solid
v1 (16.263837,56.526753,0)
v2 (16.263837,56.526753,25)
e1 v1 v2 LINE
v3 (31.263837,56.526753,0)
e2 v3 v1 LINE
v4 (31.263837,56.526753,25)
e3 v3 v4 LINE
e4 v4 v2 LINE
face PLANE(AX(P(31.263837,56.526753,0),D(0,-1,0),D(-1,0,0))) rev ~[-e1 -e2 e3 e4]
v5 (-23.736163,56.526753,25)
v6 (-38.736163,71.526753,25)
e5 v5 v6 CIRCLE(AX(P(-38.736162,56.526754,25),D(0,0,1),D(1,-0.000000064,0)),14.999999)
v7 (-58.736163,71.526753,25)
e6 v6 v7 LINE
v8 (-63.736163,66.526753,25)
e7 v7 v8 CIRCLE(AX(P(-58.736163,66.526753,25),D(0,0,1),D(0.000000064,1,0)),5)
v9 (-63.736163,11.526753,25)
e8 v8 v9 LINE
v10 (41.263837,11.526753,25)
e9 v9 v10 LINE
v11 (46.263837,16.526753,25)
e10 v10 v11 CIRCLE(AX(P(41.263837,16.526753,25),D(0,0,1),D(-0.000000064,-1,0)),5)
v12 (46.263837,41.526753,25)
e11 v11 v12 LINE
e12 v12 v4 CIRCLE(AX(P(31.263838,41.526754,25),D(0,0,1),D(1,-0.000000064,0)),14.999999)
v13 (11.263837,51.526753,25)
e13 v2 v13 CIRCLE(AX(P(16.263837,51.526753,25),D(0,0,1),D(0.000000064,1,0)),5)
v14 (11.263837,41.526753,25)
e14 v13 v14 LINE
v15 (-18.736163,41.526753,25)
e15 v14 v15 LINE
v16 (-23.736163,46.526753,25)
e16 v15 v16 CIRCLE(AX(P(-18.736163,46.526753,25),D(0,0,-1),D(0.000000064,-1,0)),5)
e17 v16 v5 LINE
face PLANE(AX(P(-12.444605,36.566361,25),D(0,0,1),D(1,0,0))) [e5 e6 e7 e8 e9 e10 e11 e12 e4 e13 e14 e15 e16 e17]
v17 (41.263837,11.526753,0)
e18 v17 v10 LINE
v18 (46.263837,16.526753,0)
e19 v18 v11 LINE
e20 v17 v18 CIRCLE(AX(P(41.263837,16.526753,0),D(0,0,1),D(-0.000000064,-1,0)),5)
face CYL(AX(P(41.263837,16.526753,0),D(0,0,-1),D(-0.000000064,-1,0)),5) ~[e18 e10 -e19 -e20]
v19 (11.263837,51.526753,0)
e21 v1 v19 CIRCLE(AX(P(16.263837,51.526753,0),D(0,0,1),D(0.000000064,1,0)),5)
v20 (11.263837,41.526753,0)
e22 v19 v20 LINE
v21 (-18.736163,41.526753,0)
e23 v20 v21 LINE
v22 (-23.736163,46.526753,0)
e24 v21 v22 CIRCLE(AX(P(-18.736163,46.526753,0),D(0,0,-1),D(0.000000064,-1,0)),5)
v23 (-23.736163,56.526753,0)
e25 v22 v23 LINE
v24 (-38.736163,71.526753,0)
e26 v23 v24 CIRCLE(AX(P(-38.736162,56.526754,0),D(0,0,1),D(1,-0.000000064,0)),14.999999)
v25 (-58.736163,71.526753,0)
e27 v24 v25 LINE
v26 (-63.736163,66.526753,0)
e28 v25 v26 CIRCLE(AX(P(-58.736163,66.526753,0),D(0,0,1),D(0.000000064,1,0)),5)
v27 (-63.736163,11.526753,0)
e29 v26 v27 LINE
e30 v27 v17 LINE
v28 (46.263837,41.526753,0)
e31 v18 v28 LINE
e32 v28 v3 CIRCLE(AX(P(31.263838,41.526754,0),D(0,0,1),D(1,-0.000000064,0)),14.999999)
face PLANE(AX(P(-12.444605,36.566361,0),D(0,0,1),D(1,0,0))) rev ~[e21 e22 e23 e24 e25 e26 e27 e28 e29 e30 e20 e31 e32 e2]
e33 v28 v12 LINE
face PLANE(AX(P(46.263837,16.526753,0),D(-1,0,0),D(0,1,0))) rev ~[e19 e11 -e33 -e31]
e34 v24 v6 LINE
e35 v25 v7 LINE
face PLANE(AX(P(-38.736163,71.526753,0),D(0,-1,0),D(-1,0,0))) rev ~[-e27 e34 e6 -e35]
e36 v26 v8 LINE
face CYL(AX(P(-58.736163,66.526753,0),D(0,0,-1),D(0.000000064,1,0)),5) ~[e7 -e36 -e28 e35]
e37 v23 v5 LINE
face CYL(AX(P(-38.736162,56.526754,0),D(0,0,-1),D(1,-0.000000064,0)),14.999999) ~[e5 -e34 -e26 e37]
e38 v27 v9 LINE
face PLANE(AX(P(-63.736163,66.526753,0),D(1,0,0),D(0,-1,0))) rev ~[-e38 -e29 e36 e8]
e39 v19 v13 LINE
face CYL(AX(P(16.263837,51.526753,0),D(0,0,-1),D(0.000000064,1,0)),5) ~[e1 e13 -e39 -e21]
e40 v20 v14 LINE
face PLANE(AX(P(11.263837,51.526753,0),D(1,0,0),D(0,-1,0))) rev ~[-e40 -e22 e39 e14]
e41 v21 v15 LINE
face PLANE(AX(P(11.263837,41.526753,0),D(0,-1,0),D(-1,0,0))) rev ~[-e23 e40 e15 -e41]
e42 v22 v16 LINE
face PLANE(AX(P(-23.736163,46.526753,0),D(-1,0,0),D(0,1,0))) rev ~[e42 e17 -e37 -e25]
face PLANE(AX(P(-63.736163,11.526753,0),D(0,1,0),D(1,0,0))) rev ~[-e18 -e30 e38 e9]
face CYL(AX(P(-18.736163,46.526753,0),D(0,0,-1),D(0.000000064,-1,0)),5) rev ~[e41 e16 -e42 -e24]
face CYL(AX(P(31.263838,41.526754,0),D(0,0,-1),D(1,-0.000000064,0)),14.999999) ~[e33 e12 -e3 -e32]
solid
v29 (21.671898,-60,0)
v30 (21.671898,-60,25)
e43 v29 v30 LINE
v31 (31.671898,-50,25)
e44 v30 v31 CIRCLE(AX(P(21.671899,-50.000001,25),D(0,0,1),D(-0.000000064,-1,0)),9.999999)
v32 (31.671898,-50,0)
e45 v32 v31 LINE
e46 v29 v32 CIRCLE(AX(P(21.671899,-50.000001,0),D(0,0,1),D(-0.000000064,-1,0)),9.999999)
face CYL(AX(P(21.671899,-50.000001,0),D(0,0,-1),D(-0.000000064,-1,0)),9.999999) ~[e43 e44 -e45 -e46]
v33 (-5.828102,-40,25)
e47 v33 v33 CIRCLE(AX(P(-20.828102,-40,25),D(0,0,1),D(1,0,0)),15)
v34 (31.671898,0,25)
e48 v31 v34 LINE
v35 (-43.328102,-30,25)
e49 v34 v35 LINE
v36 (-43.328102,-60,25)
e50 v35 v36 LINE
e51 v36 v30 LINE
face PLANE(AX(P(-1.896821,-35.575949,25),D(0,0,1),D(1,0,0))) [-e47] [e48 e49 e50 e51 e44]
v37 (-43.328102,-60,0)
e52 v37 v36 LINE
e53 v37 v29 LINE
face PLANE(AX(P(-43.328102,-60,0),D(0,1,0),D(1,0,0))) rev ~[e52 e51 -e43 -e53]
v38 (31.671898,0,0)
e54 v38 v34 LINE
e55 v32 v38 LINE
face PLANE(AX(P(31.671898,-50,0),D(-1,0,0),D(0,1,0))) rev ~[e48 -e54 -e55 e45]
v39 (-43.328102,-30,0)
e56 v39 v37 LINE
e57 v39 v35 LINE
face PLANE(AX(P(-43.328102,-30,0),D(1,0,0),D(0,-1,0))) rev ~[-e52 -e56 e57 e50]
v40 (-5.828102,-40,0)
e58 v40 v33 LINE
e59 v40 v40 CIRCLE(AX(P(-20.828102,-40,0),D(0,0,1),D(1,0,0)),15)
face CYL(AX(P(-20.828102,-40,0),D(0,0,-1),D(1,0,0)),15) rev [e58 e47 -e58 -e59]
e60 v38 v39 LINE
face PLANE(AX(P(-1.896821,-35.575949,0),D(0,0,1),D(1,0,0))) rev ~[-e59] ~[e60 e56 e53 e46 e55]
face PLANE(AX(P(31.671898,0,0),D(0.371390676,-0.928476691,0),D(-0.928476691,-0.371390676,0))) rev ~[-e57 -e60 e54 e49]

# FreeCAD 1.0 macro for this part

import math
import FreeCAD as App
import Part
import Sketcher
from FreeCAD import Vector

doc = App.newDocument("Part")
body = doc.addObject("PartDesign::Body", "Body")
body.AllowCompound = True

# Sketch on XY plane
sketch1 = body.newObject("Sketcher::SketchObject", "Sketch")
sketch1.AttachmentSupport = (doc.getObject("XY_Plane"), [""])
sketch1.MapMode = "FlatFace"
sketch1.addGeometry(Part.LineSegment(Vector(-43.3, -30, 0), Vector(-43.3, -60, 0)), False)
sketch1.addGeometry(Part.LineSegment(Vector(-43.3, -60, 0), Vector(21.7, -60, 0)), False)
sketch1.addGeometry(Part.ArcOfCircle(Part.Circle(Vector(21.7, -50, 0), Vector(0, 0, 1), 10), math.radians(-90), math.radians(0)), False)
sketch1.addGeometry(Part.LineSegment(Vector(31.7, -50, 0), Vector(31.7, 0, 0)), False)
sketch1.addGeometry(Part.LineSegment(Vector(31.7, 0, 0), Vector(-43.3, -30, 0)), False)
sketch1.addGeometry(Part.Circle(Vector(-20.8, -40, 0), Vector(0, 0, 1), 15), False)
sketch1.addGeometry(Part.LineSegment(Vector(-63.7, 66.5, 0), Vector(-63.7, 11.5, 0)), False)
sketch1.addGeometry(Part.LineSegment(Vector(-63.7, 11.5, 0), Vector(41.3, 11.5, 0)), False)
sketch1.addGeometry(Part.ArcOfCircle(Part.Circle(Vector(41.3, 16.5, 0), Vector(0, 0, 1), 5), math.radians(-90), math.radians(0)), False)
sketch1.addGeometry(Part.LineSegment(Vector(46.3, 16.5, 0), Vector(46.3, 41.5, 0)), False)
sketch1.addGeometry(Part.ArcOfCircle(Part.Circle(Vector(31.3, 41.5, 0), Vector(0, 0, 1), 15), math.radians(0), math.radians(90)), False)
sketch1.addGeometry(Part.LineSegment(Vector(31.3, 56.5, 0), Vector(16.3, 56.5, 0)), False)
sketch1.addGeometry(Part.ArcOfCircle(Part.Circle(Vector(16.3, 51.5, 0), Vector(0, 0, 1), 5), math.radians(90), math.radians(180)), False)
sketch1.addGeometry(Part.LineSegment(Vector(11.3, 51.5, 0), Vector(11.3, 41.5, 0)), False)
sketch1.addGeometry(Part.LineSegment(Vector(11.3, 41.5, 0), Vector(-18.7, 41.5, 0)), False)
sketch1.addGeometry(Part.ArcOfCircle(Part.Circle(Vector(-18.7, 46.5, 0), Vector(0, 0, 1), 5), math.radians(180), math.radians(270)), False)
sketch1.addGeometry(Part.LineSegment(Vector(-23.7, 46.5, 0), Vector(-23.7, 56.5, 0)), False)
sketch1.addGeometry(Part.ArcOfCircle(Part.Circle(Vector(-38.7, 56.5, 0), Vector(0, 0, 1), 15), math.radians(0), math.radians(90)), False)
sketch1.addGeometry(Part.LineSegment(Vector(-38.7, 71.5, 0), Vector(-58.7, 71.5, 0)), False)
sketch1.addGeometry(Part.ArcOfCircle(Part.Circle(Vector(-58.7, 66.5, 0), Vector(0, 0, 1), 5), math.radians(90), math.radians(180)), False)
sketch1.addConstraint(Sketcher.Constraint("Coincident", 0, 2, 1, 1))
sketch1.addConstraint(Sketcher.Constraint("Tangent", 1, 2, 2, 1))
sketch1.addConstraint(Sketcher.Constraint("Tangent", 2, 2, 3, 1))
sketch1.addConstraint(Sketcher.Constraint("Coincident", 3, 2, 4, 1))
sketch1.addConstraint(Sketcher.Constraint("Coincident", 4, 2, 0, 1))
sketch1.addConstraint(Sketcher.Constraint("Coincident", 6, 2, 7, 1))
sketch1.addConstraint(Sketcher.Constraint("Tangent", 7, 2, 8, 1))
sketch1.addConstraint(Sketcher.Constraint("Tangent", 8, 2, 9, 1))
sketch1.addConstraint(Sketcher.Constraint("Tangent", 9, 2, 10, 1))
sketch1.addConstraint(Sketcher.Constraint("Tangent", 10, 2, 11, 1))
sketch1.addConstraint(Sketcher.Constraint("Tangent", 11, 2, 12, 1))
sketch1.addConstraint(Sketcher.Constraint("Tangent", 12, 2, 13, 1))
sketch1.addConstraint(Sketcher.Constraint("Coincident", 13, 2, 14, 1))
sketch1.addConstraint(Sketcher.Constraint("Tangent", 14, 2, 15, 2))
sketch1.addConstraint(Sketcher.Constraint("Tangent", 15, 1, 16, 1))
sketch1.addConstraint(Sketcher.Constraint("Tangent", 16, 2, 17, 1))
sketch1.addConstraint(Sketcher.Constraint("Tangent", 17, 2, 18, 1))
sketch1.addConstraint(Sketcher.Constraint("Tangent", 18, 2, 19, 1))
sketch1.addConstraint(Sketcher.Constraint("Tangent", 19, 2, 6, 1))
sketch1.addConstraint(Sketcher.Constraint("Vertical", 0))
sketch1.addConstraint(Sketcher.Constraint("Horizontal", 1))
sketch1.addConstraint(Sketcher.Constraint("Vertical", 3))
sketch1.addConstraint(Sketcher.Constraint("Vertical", 6))
sketch1.addConstraint(Sketcher.Constraint("Horizontal", 7))
sketch1.addConstraint(Sketcher.Constraint("Vertical", 9))
sketch1.addConstraint(Sketcher.Constraint("Horizontal", 11))
sketch1.addConstraint(Sketcher.Constraint("Vertical", 13))
sketch1.addConstraint(Sketcher.Constraint("Horizontal", 14))
sketch1.addConstraint(Sketcher.Constraint("Vertical", 16))
sketch1.addConstraint(Sketcher.Constraint("Horizontal", 18))
sketch1.addConstraint(Sketcher.Constraint("Equal", 5, 10))
sketch1.addConstraint(Sketcher.Constraint("Equal", 8, 12))
sketch1.addConstraint(Sketcher.Constraint("Equal", 12, 15))
sketch1.addConstraint(Sketcher.Constraint("Equal", 10, 17))
sketch1.addConstraint(Sketcher.Constraint("Equal", 15, 19))
sketch1.addConstraint(Sketcher.Constraint("PointOnObject", 3, 2, -1))
sketch1.addConstraint(Sketcher.Constraint("Horizontal", 17, 3, 10, 2))
sketch1.addConstraint(Sketcher.Constraint("Horizontal", 9, 2, 13, 2))
sketch1.addConstraint(Sketcher.Constraint("Equal", 14, 0))
sketch1.addConstraint(Sketcher.Constraint("Diameter", 5, 30.0))
sketch1.addConstraint(Sketcher.Constraint("Radius", 2, 9.999999))
sketch1.addConstraint(Sketcher.Constraint("Radius", 8, 5.0))
sketch1.addConstraint(Sketcher.Constraint("DistanceX", 1, 1, 1, 2, 65.0))
sketch1.addConstraint(Sketcher.Constraint("DistanceX", 7, 1, 7, 2, 105.0))
sketch1.addConstraint(Sketcher.Constraint("DistanceX", 11, 2, 11, 1, 15.0))
sketch1.addConstraint(Sketcher.Constraint("DistanceX", 14, 2, 14, 1, 30.0))
sketch1.addConstraint(Sketcher.Constraint("DistanceY", 3, 1, 3, 2, 50.0))
sketch1.addConstraint(Sketcher.Constraint("DistanceY", 6, 2, 6, 1, 55.0))
sketch1.addConstraint(Sketcher.Constraint("DistanceY", 5, 3, -1, 1, 40.0))
sketch1.addConstraint(Sketcher.Constraint("DistanceX", 5, 3, 2, 3, 42.500001))
sketch1.addConstraint(Sketcher.Constraint("DistanceX", -1, 1, 2, 3, 21.671899))
sketch1.addConstraint(Sketcher.Constraint("DistanceX", 2, 3, 8, 3, 19.591939))
sketch1.addConstraint(Sketcher.Constraint("DistanceY", -1, 1, 8, 3, 16.526753))
pad1 = body.newObject("PartDesign::Pad", "Pad")
pad1.Profile = sketch1
pad1.Length = 25

doc.recompute()
